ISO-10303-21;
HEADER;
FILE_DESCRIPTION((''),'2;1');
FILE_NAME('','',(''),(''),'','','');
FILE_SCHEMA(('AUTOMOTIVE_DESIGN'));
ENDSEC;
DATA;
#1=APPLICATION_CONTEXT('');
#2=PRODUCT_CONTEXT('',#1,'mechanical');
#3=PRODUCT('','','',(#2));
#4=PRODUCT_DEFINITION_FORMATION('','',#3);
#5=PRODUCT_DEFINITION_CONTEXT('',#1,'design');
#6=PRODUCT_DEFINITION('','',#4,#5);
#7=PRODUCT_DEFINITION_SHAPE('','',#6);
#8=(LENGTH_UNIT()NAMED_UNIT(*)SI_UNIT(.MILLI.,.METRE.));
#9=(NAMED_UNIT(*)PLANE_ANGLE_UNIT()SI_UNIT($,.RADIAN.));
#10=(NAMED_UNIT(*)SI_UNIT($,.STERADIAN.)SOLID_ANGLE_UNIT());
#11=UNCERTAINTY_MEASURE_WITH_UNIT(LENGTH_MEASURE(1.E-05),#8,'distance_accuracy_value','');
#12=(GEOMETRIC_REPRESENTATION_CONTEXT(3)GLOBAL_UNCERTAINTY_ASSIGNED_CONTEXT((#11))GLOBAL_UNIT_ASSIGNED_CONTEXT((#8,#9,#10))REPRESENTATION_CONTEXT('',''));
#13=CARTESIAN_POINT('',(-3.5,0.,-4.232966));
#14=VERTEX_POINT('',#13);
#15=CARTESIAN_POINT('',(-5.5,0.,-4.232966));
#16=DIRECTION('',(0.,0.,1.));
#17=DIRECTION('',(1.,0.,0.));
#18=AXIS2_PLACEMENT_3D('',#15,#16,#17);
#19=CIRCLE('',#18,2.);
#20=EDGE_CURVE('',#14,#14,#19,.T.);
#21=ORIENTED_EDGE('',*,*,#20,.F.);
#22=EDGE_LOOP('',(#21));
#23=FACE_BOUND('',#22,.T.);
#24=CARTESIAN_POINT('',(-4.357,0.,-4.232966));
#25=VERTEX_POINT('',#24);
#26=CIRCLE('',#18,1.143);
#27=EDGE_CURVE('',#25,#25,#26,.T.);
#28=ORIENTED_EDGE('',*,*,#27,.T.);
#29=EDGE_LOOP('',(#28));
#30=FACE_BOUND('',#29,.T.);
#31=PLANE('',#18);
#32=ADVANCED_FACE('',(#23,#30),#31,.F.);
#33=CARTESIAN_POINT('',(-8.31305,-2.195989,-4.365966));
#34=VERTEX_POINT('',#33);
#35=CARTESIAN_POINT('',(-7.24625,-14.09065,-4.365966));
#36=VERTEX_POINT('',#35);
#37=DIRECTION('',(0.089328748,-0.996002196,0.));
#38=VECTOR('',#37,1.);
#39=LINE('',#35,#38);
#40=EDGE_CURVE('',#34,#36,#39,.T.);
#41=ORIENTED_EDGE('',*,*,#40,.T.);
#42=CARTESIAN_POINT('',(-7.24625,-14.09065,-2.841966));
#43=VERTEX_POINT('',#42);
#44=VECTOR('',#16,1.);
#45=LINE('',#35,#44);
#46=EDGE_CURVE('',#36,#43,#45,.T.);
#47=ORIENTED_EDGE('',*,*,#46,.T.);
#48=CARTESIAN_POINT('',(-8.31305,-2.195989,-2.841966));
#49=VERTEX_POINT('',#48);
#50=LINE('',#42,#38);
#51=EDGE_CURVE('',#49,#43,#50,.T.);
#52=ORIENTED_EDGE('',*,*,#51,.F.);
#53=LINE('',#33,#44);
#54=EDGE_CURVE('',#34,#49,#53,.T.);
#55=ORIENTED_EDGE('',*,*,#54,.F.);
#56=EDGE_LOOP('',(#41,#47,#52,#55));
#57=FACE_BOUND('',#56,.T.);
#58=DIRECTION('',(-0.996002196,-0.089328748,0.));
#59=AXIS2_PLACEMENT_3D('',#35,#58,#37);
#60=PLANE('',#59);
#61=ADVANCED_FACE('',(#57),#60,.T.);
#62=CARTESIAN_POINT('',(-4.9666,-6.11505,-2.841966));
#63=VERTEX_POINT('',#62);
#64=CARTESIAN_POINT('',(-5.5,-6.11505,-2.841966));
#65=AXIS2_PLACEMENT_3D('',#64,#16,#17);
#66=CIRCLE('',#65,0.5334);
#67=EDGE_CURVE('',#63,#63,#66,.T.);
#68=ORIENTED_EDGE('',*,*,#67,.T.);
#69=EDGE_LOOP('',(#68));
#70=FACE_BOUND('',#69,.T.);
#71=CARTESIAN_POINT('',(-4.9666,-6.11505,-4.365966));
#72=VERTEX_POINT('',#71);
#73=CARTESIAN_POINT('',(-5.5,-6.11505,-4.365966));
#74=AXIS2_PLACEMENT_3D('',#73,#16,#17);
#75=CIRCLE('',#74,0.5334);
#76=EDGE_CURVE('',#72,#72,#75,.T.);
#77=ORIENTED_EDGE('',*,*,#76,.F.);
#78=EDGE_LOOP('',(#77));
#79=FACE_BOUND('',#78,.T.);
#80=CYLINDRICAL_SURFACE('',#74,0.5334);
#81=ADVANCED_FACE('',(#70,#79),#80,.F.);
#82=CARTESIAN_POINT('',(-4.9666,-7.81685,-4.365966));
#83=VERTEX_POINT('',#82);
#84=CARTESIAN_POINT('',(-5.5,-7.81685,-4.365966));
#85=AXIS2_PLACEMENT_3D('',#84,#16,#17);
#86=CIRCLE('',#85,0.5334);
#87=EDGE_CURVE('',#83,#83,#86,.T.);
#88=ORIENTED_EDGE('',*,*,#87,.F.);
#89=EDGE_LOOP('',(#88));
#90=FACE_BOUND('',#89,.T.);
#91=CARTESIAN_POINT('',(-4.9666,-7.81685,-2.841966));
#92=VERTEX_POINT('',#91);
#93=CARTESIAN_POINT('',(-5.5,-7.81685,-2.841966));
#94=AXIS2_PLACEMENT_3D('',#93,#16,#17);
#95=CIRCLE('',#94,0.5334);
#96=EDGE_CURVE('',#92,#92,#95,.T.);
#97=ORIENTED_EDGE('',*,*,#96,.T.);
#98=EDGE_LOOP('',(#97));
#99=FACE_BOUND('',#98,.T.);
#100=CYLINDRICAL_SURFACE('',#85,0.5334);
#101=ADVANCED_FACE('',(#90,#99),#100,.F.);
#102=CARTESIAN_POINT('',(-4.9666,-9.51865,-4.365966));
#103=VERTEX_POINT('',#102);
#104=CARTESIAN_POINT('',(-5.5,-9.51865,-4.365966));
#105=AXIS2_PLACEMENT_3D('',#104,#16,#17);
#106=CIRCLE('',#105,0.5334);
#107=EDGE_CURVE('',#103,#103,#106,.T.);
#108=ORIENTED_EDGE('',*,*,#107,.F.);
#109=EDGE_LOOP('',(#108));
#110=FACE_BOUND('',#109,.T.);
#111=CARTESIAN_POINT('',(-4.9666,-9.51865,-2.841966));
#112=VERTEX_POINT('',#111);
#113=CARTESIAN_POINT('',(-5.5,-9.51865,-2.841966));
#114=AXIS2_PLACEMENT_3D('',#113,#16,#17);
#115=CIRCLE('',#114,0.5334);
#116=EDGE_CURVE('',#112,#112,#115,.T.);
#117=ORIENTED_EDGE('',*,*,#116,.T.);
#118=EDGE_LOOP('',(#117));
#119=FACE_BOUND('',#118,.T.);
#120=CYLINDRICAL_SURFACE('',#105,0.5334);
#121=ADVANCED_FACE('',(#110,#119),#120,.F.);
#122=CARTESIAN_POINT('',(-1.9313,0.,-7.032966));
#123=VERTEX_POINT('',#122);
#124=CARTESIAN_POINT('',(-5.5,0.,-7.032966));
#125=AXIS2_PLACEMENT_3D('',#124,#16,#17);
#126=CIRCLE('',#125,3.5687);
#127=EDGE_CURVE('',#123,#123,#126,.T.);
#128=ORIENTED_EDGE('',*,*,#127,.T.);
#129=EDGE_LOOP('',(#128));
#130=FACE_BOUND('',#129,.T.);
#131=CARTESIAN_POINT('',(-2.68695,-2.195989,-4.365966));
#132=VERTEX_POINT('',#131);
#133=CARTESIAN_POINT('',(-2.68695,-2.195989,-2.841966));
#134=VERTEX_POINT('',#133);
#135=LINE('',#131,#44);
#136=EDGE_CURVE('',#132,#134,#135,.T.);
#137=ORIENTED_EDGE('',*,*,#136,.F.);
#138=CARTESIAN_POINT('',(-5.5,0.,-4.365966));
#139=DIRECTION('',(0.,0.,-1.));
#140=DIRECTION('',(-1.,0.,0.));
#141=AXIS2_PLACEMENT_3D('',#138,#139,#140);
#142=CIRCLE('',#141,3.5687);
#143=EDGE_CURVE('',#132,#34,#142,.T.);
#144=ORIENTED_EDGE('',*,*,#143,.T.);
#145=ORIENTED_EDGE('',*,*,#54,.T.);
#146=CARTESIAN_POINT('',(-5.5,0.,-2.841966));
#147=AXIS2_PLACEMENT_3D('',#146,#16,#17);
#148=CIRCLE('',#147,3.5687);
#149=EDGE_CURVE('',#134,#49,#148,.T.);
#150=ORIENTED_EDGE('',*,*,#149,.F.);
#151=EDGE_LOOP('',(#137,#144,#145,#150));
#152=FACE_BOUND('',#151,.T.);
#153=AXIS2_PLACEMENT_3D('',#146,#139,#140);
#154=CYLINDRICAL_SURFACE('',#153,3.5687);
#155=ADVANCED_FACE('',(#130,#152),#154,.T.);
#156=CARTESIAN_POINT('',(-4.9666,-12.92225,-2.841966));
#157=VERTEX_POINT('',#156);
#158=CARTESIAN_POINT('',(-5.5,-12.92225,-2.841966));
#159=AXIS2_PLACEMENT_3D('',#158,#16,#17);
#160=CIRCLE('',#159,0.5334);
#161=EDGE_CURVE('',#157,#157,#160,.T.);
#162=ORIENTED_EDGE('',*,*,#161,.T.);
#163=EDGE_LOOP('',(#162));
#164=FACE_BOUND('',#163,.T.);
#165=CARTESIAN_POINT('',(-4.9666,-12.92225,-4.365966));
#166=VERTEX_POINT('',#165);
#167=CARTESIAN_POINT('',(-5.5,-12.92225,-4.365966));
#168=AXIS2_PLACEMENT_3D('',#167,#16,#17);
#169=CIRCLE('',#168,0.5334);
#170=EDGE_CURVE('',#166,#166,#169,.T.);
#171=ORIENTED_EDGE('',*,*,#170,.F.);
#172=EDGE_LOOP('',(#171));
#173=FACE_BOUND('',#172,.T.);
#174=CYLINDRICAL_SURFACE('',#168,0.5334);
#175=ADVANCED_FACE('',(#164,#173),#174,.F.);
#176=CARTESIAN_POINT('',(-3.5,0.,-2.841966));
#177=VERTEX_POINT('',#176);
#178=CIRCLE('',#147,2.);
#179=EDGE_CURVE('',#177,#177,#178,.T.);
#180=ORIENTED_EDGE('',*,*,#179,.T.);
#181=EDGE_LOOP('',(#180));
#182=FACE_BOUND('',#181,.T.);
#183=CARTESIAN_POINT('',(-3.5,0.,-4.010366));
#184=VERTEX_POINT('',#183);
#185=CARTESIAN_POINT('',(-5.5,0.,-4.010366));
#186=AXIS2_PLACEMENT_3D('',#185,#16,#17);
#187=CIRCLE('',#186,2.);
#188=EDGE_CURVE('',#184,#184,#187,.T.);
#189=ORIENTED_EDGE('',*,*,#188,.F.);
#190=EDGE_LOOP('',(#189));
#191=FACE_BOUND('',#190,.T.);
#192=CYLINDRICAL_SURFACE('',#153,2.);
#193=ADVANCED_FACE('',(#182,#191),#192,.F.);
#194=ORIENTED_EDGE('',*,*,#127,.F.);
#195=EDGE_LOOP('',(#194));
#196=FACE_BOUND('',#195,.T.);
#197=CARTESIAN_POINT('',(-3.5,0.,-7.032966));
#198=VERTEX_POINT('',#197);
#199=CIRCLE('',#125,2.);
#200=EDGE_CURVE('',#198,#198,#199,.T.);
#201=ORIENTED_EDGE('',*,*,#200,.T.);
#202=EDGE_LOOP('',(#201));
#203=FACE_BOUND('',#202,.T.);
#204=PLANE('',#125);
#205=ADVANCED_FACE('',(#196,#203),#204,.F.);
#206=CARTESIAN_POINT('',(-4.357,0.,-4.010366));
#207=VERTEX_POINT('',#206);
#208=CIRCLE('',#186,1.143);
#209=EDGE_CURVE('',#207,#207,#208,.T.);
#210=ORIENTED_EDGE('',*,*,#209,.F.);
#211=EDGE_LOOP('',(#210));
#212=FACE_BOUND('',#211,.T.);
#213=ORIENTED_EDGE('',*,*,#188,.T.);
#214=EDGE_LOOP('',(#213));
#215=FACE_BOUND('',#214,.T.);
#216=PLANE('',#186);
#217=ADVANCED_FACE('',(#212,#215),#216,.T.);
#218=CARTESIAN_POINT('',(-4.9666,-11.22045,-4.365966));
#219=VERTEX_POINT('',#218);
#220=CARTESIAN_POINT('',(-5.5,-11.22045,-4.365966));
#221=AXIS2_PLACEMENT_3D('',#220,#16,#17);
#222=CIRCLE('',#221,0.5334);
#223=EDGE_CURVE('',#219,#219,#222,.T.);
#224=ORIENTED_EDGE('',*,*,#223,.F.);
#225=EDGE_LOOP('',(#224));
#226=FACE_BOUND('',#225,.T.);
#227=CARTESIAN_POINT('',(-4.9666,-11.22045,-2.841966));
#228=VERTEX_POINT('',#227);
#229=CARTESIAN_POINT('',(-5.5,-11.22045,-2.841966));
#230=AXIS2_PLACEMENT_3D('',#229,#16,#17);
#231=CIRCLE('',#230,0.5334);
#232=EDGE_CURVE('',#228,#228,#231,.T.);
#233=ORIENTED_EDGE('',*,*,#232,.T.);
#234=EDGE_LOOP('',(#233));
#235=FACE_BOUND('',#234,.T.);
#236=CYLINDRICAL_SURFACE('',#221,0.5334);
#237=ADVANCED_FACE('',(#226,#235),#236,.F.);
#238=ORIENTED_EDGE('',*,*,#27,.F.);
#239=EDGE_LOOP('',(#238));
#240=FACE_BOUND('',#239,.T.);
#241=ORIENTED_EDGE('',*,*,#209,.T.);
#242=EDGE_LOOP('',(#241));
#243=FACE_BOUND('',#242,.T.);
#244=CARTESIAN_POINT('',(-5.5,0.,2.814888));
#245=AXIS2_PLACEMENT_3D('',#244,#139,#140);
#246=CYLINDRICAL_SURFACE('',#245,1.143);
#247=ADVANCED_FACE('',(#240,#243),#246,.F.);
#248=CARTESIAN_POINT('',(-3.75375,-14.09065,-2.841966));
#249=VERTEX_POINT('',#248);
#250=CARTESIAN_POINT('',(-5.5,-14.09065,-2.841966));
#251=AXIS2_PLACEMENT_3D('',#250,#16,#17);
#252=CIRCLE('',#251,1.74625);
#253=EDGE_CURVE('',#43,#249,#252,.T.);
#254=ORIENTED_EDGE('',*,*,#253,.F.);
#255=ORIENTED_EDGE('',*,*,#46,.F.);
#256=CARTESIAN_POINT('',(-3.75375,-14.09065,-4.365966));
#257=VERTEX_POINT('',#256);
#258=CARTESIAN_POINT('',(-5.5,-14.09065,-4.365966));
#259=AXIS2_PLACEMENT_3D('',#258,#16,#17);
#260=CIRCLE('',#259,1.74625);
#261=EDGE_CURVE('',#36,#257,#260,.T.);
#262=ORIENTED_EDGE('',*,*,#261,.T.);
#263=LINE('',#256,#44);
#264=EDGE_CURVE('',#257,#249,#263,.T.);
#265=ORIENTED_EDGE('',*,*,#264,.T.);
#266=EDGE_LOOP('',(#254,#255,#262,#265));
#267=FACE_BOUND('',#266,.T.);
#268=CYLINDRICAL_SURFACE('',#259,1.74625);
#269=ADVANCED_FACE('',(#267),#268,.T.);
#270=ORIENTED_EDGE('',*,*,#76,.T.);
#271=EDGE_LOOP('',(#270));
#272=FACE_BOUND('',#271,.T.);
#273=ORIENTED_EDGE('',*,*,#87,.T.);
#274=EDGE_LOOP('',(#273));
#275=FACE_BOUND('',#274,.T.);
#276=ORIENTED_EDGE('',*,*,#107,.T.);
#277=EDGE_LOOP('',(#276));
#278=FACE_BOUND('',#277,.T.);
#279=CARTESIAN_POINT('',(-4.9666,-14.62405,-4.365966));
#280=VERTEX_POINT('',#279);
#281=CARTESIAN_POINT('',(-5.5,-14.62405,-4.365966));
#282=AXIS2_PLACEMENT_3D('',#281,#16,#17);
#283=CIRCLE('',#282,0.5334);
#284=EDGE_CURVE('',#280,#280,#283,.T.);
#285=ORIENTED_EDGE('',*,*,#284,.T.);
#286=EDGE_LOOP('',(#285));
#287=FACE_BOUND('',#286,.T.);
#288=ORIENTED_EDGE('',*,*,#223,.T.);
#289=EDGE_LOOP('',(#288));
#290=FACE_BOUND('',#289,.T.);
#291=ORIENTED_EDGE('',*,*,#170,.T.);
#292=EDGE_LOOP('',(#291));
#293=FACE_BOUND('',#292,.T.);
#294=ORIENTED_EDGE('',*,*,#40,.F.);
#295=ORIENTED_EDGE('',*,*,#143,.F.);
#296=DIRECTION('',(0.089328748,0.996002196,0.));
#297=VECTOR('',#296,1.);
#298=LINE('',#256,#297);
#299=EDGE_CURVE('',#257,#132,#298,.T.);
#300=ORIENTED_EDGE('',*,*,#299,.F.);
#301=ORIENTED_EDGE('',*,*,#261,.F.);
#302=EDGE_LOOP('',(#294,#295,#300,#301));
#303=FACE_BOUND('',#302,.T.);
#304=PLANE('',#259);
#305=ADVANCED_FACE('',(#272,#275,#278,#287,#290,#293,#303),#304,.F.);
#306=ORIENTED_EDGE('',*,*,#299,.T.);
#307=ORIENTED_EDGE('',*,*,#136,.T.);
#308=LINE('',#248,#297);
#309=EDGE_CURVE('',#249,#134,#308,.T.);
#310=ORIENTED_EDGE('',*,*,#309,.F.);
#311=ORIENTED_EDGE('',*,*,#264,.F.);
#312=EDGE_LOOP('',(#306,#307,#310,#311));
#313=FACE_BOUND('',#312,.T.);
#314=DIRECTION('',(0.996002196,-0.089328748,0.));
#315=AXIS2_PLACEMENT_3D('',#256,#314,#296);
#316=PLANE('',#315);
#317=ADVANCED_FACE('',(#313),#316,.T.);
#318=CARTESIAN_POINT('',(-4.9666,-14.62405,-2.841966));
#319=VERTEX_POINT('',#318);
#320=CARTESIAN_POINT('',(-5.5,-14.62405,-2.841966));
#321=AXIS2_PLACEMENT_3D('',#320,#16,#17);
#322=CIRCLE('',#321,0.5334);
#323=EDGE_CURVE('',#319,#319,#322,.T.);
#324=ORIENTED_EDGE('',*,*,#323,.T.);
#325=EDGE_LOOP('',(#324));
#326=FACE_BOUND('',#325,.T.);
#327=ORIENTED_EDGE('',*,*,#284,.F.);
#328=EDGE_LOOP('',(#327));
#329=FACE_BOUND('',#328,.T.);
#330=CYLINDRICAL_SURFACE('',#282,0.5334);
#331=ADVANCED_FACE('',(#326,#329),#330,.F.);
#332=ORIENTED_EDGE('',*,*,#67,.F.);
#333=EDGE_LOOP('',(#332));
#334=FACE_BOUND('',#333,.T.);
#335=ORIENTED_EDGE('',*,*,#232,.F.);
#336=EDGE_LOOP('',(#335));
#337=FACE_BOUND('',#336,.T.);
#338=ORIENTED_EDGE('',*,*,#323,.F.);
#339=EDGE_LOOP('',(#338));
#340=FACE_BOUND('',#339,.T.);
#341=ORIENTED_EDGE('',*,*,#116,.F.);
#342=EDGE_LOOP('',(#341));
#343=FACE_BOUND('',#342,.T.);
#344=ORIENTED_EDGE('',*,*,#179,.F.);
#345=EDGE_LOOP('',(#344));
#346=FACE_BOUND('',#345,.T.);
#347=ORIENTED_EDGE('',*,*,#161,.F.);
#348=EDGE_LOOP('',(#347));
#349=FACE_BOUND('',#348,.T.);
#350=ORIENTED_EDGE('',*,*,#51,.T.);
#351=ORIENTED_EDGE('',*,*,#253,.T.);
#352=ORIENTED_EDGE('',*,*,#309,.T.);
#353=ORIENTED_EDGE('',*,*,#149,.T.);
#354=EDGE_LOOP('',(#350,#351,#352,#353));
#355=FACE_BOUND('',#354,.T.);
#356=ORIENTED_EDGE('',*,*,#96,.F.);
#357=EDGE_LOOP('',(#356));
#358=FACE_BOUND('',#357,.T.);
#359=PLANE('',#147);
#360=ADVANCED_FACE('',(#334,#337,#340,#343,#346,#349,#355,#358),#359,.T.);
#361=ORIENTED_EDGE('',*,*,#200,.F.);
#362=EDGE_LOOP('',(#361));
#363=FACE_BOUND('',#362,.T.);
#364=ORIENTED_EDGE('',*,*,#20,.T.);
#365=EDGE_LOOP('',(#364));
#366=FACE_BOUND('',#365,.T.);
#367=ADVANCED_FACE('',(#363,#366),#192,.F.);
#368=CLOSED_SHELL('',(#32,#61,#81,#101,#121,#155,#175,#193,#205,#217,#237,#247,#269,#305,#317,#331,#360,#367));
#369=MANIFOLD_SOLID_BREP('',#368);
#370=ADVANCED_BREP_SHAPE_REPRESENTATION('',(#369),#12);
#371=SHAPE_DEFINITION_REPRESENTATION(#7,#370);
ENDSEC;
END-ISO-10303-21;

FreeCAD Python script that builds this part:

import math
import FreeCAD as App
import Part
import Sketcher
Q = App.Units.Quantity

doc = App.newDocument("Part")
params = doc.addObject("Spreadsheet::Sheet", "Params")
for row, (alias, value) in enumerate([
    ("sketch1_diameter", "0.281 in"),
    ("pad1_length", "0.165 in"),
    ("sketch2_diameter", "0.09 in"),
    ("pad2_length", "0.2226 mm"),
    ("sketch3_diameter", "0.042 in"),
    ("pad3_length", "0.06 in"),
], start=1):
    params.set(f"A{row}", alias)
    params.set(f"B{row}", "=" + value)
    params.setAlias(f"B{row}", alias)

body = doc.addObject("PartDesign::Body", "Body")

# Sketch on XY plane
sketch1 = body.newObject("Sketcher::SketchObject", "Sketch")
sketch1.AttachmentSupport = (doc.getObject("XY_Plane"), [""])
sketch1.MapMode = "FlatFace"
sketch1.AttachmentOffset = App.Placement(App.Vector(0, 0, -7.032966), App.Rotation())
sketch1.addGeometry([
    Part.Circle(App.Vector(-5.5, 0, 0), App.Vector(0, 0, 1), 3.6),
    Part.Circle(App.Vector(-5.5, 0, 0), App.Vector(0, 0, 1), 2),
], False)
sketch1.addConstraint([
    Sketcher.Constraint("Coincident", 1, 3, 0, 3),
    Sketcher.Constraint("PointOnObject", 0, 3, -1),
    Sketcher.Constraint("Diameter", 0, Q("0.281 in")),
    Sketcher.Constraint("Diameter", 1, Q("4 mm")),
    Sketcher.Constraint("DistanceX", 0, 3, -1, 1, Q("5.5 mm")),
])
sketch1.setExpression("Constraints[2]", "Params.sketch1_diameter")
pad1 = body.newObject("PartDesign::Pad", "Pad")
pad1.Profile = sketch1
pad1.setExpression("Length", "Params.pad1_length")

# Sketch on XY plane
sketch2 = body.newObject("Sketcher::SketchObject", "Sketch001")
sketch2.AttachmentSupport = (doc.getObject("XY_Plane"), [""])
sketch2.MapMode = "FlatFace"
sketch2.AttachmentOffset = App.Placement(App.Vector(0, 0, -4.232966), App.Rotation())
sketch2.addGeometry([
    Part.Circle(App.Vector(-5.5, 0, 0), App.Vector(0, 0, 1), 2),
    Part.Circle(App.Vector(-5.5, 0, 0), App.Vector(0, 0, 1), 1.1),
], False)
sketch2.addConstraint([
    Sketcher.Constraint("Coincident", 1, 3, 0, 3),
    Sketcher.Constraint("PointOnObject", 0, 3, -1),
    Sketcher.Constraint("Diameter", 1, Q("0.09 in")),
    Sketcher.Constraint("Diameter", 0, Q("4 mm")),
    Sketcher.Constraint("DistanceX", 0, 3, -1, 1, Q("5.5 mm")),
])
sketch2.setExpression("Constraints[2]", "Params.sketch2_diameter")
pad2 = body.newObject("PartDesign::Pad", "Pad001")
pad2.Profile = sketch2
pad2.setExpression("Length", "Params.pad2_length")

# Sketch on XY plane
sketch3 = body.newObject("Sketcher::SketchObject", "Sketch002")
sketch3.AttachmentSupport = (doc.getObject("XY_Plane"), [""])
sketch3.MapMode = "FlatFace"
sketch3.AttachmentOffset = App.Placement(App.Vector(0, 0, -2.841966), App.Rotation())
sketch3.addGeometry([
    Part.LineSegment(App.Vector(-3.8, -14.1, 0), App.Vector(-2.7, -2.2, 0)),  # 0
    Part.ArcOfCircle(Part.Circle(App.Vector(-5.5, 0, 0), App.Vector(0, 0, 1), 3.6), math.radians(-142), math.radians(-38)),  # 1
    Part.LineSegment(App.Vector(-8.3, -2.2, 0), App.Vector(-7.2, -14.1, 0)),  # 2
    Part.ArcOfCircle(Part.Circle(App.Vector(-5.5, -14.1, 0), App.Vector(0, 0, 1), 1.7), math.radians(180), math.radians(360)),  # 3
    Part.Circle(App.Vector(-5.5, -14.6, 0), App.Vector(0, 0, 1), 0.5),  # 4
    Part.Circle(App.Vector(-5.5, -12.9, 0), App.Vector(0, 0, 1), 0.5),  # 5
    Part.Circle(App.Vector(-5.5, -11.2, 0), App.Vector(0, 0, 1), 0.5),  # 6
    Part.Circle(App.Vector(-5.5, -9.5, 0), App.Vector(0, 0, 1), 0.5),  # 7
    Part.Circle(App.Vector(-5.5, -7.8, 0), App.Vector(0, 0, 1), 0.5),  # 8
    Part.Circle(App.Vector(-5.5, -6.1, 0), App.Vector(0, 0, 1), 0.5),  # 9
], False)
sketch3.addConstraint([
    Sketcher.Constraint("Coincident", 0, 2, 1, 2),
    Sketcher.Constraint("Coincident", 1, 1, 2, 1),
    Sketcher.Constraint("Coincident", 2, 2, 3, 1),
    Sketcher.Constraint("Coincident", 3, 2, 0, 1),
    Sketcher.Constraint("Equal", 4, 5),
    Sketcher.Constraint("Equal", 5, 6),
    Sketcher.Constraint("Equal", 6, 7),
    Sketcher.Constraint("Equal", 7, 8),
    Sketcher.Constraint("Equal", 8, 9),
    Sketcher.Constraint("PointOnObject", 1, 3, -1),
    Sketcher.Constraint("Horizontal", 0, 2, 1, 1),
    Sketcher.Constraint("Horizontal", 3, 3, 2, 2),
    Sketcher.Constraint("Horizontal", 2, 2, 3, 2),
    Sketcher.Constraint("Vertical", 1, 3, 3, 3),
    Sketcher.Constraint("Vertical", 3, 3, 4, 3),
    Sketcher.Constraint("Vertical", 4, 3, 5, 3),
    Sketcher.Constraint("Vertical", 5, 3, 6, 3),
    Sketcher.Constraint("Vertical", 6, 3, 7, 3),
    Sketcher.Constraint("Vertical", 7, 3, 8, 3),
    Sketcher.Constraint("Vertical", 8, 3, 9, 3),
    Sketcher.Constraint("Diameter", 4, Q("0.042 in")),
    Sketcher.Constraint("Radius", 1, Q("0.1405 in")),
    Sketcher.Constraint("DistanceY", 3, 3, 7, 3, Q("0.18 in")),
    Sketcher.Constraint("Radius", 3, Q("1.74625 mm")),
    Sketcher.Constraint("DistanceY", 4, 3, 3, 3, Q("0.021 in")),
    Sketcher.Constraint("DistanceY", 3, 3, 5, 3, Q("0.046 in")),
    Sketcher.Constraint("DistanceY", 5, 3, 6, 3, Q("0.067 in")),
    Sketcher.Constraint("DistanceY", 7, 3, 8, 3, Q("0.067 in")),
    Sketcher.Constraint("DistanceY", 8, 3, 9, 3, Q("0.067 in")),
    Sketcher.Constraint("DistanceX", 1, 1, 0, 2, Q("0.2215 in")),
    Sketcher.Constraint("DistanceX", 1, 3, -1, 1, Q("5.5 mm")),
    Sketcher.Constraint("DistanceY", 3, 3, -1, 1, Q("14.09065 mm")),
])
sketch3.setExpression("Constraints[20]", "Params.sketch3_diameter")
pad3 = body.newObject("PartDesign::Pad", "Pad002")
pad3.Profile = sketch3
pad3.setExpression("Length", "Params.pad3_length")
pad3.Reversed = True

doc.recompute()
